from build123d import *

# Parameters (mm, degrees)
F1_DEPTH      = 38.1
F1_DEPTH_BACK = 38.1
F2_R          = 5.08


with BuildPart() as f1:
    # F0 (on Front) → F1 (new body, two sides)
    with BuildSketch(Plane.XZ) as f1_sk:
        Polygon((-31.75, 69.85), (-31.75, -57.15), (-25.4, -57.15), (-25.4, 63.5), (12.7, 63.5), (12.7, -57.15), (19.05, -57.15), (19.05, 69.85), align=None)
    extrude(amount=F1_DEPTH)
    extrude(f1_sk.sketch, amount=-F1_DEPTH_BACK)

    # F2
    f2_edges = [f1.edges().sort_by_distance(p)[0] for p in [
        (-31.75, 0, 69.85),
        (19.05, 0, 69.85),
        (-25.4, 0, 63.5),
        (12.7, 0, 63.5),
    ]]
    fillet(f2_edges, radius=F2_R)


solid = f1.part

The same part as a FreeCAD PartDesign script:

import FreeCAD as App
import Part
import Sketcher

V = App.Vector
Q = App.Units.Quantity


def edges_at(feature, points):
    """Names of the edges that pass closest to the given points."""
    edges = feature.Shape.Edges
    near = lambda p: min(range(len(edges)), key=lambda i: edges[i].distToShape(Part.Vertex(*p))[0])
    return sorted({f"Edge{near(p) + 1}" for p in points})


def add_polygon(sketch, points):
    """Adds a closed chain of lines whose ends are joined by coincident constraints."""
    first, n = sketch.GeometryCount, len(points)
    for a, b in zip(points, points[1:] + points[:1]):
        sketch.addGeometry(Part.LineSegment(App.Vector(*a, 0), App.Vector(*b, 0)), False)
    for i in range(n):
        sketch.addConstraint(Sketcher.Constraint("Coincident", first + i, 2, first + (i + 1) % n, 1))

doc = App.newDocument("Part")
body = doc.addObject("PartDesign::Body", "Body")

# Sketch on XZ plane
sketch1 = body.newObject("Sketcher::SketchObject", "Sketch")
sketch1.AttachmentSupport = (doc.getObject("XZ_Plane"), [""])
sketch1.MapMode = "FlatFace"
add_polygon(sketch1, [(-31.75, 69.85), (-31.75, -57.15), (-25.4, -57.15), (-25.4, 63.5), (12.7, 63.5), (12.7, -57.15), (19.05, -57.15), (19.05, 69.85)])  # lines 0-7
sketch1.addConstraint(Sketcher.Constraint("Vertical", 0))
sketch1.addConstraint(Sketcher.Constraint("Horizontal", 1))
sketch1.addConstraint(Sketcher.Constraint("Vertical", 2))
sketch1.addConstraint(Sketcher.Constraint("Horizontal", 3))
sketch1.addConstraint(Sketcher.Constraint("Vertical", 4))
sketch1.addConstraint(Sketcher.Constraint("Horizontal", 5))
sketch1.addConstraint(Sketcher.Constraint("Vertical", 6))
sketch1.addConstraint(Sketcher.Constraint("Horizontal", 7))
sketch1.addConstraint(Sketcher.Constraint("Horizontal", 1, 2, 4, 2))
sketch1.addConstraint(Sketcher.Constraint("Equal", 1, 5))
sketch1.addConstraint(Sketcher.Constraint("DistanceX", 7, 2, 7, 1, Q("2 in")))
sketch1.addConstraint(Sketcher.Constraint("DistanceY", 0, 2, 0, 1, Q("5 in")))
sketch1.addConstraint(Sketcher.Constraint("DistanceX", 3, 1, 3, 2, Q("1.5 in")))
sketch1.addConstraint(Sketcher.Constraint("DistanceX", 1, 2, -1, 1, Q("1 in")))
sketch1.addConstraint(Sketcher.Constraint("DistanceY", 2, 1, 2, 2, Q("4.75 in")))
sketch1.addConstraint(Sketcher.Constraint("DistanceY", -1, 1, 2, 2, Q("2.5 in")))
pad1 = body.newObject("PartDesign::Pad", "Pad")
pad1.Profile = sketch1
pad1.Type = "TwoLengths"
pad1.Length = Q("1.5 in")
pad1.Length2 = Q("1.5 in")
doc.recompute()

fillet = body.newObject("PartDesign::Fillet", "Fillet")
fillet.Base = (pad1, edges_at(pad1, [
    (-31.75, 0, 69.85),
    (19.05, 0, 69.85),
    (-25.4, 0, 63.5),
    (12.7, 0, 63.5),
]))
fillet.Radius = Q("0.2 in")

doc.recompute()
